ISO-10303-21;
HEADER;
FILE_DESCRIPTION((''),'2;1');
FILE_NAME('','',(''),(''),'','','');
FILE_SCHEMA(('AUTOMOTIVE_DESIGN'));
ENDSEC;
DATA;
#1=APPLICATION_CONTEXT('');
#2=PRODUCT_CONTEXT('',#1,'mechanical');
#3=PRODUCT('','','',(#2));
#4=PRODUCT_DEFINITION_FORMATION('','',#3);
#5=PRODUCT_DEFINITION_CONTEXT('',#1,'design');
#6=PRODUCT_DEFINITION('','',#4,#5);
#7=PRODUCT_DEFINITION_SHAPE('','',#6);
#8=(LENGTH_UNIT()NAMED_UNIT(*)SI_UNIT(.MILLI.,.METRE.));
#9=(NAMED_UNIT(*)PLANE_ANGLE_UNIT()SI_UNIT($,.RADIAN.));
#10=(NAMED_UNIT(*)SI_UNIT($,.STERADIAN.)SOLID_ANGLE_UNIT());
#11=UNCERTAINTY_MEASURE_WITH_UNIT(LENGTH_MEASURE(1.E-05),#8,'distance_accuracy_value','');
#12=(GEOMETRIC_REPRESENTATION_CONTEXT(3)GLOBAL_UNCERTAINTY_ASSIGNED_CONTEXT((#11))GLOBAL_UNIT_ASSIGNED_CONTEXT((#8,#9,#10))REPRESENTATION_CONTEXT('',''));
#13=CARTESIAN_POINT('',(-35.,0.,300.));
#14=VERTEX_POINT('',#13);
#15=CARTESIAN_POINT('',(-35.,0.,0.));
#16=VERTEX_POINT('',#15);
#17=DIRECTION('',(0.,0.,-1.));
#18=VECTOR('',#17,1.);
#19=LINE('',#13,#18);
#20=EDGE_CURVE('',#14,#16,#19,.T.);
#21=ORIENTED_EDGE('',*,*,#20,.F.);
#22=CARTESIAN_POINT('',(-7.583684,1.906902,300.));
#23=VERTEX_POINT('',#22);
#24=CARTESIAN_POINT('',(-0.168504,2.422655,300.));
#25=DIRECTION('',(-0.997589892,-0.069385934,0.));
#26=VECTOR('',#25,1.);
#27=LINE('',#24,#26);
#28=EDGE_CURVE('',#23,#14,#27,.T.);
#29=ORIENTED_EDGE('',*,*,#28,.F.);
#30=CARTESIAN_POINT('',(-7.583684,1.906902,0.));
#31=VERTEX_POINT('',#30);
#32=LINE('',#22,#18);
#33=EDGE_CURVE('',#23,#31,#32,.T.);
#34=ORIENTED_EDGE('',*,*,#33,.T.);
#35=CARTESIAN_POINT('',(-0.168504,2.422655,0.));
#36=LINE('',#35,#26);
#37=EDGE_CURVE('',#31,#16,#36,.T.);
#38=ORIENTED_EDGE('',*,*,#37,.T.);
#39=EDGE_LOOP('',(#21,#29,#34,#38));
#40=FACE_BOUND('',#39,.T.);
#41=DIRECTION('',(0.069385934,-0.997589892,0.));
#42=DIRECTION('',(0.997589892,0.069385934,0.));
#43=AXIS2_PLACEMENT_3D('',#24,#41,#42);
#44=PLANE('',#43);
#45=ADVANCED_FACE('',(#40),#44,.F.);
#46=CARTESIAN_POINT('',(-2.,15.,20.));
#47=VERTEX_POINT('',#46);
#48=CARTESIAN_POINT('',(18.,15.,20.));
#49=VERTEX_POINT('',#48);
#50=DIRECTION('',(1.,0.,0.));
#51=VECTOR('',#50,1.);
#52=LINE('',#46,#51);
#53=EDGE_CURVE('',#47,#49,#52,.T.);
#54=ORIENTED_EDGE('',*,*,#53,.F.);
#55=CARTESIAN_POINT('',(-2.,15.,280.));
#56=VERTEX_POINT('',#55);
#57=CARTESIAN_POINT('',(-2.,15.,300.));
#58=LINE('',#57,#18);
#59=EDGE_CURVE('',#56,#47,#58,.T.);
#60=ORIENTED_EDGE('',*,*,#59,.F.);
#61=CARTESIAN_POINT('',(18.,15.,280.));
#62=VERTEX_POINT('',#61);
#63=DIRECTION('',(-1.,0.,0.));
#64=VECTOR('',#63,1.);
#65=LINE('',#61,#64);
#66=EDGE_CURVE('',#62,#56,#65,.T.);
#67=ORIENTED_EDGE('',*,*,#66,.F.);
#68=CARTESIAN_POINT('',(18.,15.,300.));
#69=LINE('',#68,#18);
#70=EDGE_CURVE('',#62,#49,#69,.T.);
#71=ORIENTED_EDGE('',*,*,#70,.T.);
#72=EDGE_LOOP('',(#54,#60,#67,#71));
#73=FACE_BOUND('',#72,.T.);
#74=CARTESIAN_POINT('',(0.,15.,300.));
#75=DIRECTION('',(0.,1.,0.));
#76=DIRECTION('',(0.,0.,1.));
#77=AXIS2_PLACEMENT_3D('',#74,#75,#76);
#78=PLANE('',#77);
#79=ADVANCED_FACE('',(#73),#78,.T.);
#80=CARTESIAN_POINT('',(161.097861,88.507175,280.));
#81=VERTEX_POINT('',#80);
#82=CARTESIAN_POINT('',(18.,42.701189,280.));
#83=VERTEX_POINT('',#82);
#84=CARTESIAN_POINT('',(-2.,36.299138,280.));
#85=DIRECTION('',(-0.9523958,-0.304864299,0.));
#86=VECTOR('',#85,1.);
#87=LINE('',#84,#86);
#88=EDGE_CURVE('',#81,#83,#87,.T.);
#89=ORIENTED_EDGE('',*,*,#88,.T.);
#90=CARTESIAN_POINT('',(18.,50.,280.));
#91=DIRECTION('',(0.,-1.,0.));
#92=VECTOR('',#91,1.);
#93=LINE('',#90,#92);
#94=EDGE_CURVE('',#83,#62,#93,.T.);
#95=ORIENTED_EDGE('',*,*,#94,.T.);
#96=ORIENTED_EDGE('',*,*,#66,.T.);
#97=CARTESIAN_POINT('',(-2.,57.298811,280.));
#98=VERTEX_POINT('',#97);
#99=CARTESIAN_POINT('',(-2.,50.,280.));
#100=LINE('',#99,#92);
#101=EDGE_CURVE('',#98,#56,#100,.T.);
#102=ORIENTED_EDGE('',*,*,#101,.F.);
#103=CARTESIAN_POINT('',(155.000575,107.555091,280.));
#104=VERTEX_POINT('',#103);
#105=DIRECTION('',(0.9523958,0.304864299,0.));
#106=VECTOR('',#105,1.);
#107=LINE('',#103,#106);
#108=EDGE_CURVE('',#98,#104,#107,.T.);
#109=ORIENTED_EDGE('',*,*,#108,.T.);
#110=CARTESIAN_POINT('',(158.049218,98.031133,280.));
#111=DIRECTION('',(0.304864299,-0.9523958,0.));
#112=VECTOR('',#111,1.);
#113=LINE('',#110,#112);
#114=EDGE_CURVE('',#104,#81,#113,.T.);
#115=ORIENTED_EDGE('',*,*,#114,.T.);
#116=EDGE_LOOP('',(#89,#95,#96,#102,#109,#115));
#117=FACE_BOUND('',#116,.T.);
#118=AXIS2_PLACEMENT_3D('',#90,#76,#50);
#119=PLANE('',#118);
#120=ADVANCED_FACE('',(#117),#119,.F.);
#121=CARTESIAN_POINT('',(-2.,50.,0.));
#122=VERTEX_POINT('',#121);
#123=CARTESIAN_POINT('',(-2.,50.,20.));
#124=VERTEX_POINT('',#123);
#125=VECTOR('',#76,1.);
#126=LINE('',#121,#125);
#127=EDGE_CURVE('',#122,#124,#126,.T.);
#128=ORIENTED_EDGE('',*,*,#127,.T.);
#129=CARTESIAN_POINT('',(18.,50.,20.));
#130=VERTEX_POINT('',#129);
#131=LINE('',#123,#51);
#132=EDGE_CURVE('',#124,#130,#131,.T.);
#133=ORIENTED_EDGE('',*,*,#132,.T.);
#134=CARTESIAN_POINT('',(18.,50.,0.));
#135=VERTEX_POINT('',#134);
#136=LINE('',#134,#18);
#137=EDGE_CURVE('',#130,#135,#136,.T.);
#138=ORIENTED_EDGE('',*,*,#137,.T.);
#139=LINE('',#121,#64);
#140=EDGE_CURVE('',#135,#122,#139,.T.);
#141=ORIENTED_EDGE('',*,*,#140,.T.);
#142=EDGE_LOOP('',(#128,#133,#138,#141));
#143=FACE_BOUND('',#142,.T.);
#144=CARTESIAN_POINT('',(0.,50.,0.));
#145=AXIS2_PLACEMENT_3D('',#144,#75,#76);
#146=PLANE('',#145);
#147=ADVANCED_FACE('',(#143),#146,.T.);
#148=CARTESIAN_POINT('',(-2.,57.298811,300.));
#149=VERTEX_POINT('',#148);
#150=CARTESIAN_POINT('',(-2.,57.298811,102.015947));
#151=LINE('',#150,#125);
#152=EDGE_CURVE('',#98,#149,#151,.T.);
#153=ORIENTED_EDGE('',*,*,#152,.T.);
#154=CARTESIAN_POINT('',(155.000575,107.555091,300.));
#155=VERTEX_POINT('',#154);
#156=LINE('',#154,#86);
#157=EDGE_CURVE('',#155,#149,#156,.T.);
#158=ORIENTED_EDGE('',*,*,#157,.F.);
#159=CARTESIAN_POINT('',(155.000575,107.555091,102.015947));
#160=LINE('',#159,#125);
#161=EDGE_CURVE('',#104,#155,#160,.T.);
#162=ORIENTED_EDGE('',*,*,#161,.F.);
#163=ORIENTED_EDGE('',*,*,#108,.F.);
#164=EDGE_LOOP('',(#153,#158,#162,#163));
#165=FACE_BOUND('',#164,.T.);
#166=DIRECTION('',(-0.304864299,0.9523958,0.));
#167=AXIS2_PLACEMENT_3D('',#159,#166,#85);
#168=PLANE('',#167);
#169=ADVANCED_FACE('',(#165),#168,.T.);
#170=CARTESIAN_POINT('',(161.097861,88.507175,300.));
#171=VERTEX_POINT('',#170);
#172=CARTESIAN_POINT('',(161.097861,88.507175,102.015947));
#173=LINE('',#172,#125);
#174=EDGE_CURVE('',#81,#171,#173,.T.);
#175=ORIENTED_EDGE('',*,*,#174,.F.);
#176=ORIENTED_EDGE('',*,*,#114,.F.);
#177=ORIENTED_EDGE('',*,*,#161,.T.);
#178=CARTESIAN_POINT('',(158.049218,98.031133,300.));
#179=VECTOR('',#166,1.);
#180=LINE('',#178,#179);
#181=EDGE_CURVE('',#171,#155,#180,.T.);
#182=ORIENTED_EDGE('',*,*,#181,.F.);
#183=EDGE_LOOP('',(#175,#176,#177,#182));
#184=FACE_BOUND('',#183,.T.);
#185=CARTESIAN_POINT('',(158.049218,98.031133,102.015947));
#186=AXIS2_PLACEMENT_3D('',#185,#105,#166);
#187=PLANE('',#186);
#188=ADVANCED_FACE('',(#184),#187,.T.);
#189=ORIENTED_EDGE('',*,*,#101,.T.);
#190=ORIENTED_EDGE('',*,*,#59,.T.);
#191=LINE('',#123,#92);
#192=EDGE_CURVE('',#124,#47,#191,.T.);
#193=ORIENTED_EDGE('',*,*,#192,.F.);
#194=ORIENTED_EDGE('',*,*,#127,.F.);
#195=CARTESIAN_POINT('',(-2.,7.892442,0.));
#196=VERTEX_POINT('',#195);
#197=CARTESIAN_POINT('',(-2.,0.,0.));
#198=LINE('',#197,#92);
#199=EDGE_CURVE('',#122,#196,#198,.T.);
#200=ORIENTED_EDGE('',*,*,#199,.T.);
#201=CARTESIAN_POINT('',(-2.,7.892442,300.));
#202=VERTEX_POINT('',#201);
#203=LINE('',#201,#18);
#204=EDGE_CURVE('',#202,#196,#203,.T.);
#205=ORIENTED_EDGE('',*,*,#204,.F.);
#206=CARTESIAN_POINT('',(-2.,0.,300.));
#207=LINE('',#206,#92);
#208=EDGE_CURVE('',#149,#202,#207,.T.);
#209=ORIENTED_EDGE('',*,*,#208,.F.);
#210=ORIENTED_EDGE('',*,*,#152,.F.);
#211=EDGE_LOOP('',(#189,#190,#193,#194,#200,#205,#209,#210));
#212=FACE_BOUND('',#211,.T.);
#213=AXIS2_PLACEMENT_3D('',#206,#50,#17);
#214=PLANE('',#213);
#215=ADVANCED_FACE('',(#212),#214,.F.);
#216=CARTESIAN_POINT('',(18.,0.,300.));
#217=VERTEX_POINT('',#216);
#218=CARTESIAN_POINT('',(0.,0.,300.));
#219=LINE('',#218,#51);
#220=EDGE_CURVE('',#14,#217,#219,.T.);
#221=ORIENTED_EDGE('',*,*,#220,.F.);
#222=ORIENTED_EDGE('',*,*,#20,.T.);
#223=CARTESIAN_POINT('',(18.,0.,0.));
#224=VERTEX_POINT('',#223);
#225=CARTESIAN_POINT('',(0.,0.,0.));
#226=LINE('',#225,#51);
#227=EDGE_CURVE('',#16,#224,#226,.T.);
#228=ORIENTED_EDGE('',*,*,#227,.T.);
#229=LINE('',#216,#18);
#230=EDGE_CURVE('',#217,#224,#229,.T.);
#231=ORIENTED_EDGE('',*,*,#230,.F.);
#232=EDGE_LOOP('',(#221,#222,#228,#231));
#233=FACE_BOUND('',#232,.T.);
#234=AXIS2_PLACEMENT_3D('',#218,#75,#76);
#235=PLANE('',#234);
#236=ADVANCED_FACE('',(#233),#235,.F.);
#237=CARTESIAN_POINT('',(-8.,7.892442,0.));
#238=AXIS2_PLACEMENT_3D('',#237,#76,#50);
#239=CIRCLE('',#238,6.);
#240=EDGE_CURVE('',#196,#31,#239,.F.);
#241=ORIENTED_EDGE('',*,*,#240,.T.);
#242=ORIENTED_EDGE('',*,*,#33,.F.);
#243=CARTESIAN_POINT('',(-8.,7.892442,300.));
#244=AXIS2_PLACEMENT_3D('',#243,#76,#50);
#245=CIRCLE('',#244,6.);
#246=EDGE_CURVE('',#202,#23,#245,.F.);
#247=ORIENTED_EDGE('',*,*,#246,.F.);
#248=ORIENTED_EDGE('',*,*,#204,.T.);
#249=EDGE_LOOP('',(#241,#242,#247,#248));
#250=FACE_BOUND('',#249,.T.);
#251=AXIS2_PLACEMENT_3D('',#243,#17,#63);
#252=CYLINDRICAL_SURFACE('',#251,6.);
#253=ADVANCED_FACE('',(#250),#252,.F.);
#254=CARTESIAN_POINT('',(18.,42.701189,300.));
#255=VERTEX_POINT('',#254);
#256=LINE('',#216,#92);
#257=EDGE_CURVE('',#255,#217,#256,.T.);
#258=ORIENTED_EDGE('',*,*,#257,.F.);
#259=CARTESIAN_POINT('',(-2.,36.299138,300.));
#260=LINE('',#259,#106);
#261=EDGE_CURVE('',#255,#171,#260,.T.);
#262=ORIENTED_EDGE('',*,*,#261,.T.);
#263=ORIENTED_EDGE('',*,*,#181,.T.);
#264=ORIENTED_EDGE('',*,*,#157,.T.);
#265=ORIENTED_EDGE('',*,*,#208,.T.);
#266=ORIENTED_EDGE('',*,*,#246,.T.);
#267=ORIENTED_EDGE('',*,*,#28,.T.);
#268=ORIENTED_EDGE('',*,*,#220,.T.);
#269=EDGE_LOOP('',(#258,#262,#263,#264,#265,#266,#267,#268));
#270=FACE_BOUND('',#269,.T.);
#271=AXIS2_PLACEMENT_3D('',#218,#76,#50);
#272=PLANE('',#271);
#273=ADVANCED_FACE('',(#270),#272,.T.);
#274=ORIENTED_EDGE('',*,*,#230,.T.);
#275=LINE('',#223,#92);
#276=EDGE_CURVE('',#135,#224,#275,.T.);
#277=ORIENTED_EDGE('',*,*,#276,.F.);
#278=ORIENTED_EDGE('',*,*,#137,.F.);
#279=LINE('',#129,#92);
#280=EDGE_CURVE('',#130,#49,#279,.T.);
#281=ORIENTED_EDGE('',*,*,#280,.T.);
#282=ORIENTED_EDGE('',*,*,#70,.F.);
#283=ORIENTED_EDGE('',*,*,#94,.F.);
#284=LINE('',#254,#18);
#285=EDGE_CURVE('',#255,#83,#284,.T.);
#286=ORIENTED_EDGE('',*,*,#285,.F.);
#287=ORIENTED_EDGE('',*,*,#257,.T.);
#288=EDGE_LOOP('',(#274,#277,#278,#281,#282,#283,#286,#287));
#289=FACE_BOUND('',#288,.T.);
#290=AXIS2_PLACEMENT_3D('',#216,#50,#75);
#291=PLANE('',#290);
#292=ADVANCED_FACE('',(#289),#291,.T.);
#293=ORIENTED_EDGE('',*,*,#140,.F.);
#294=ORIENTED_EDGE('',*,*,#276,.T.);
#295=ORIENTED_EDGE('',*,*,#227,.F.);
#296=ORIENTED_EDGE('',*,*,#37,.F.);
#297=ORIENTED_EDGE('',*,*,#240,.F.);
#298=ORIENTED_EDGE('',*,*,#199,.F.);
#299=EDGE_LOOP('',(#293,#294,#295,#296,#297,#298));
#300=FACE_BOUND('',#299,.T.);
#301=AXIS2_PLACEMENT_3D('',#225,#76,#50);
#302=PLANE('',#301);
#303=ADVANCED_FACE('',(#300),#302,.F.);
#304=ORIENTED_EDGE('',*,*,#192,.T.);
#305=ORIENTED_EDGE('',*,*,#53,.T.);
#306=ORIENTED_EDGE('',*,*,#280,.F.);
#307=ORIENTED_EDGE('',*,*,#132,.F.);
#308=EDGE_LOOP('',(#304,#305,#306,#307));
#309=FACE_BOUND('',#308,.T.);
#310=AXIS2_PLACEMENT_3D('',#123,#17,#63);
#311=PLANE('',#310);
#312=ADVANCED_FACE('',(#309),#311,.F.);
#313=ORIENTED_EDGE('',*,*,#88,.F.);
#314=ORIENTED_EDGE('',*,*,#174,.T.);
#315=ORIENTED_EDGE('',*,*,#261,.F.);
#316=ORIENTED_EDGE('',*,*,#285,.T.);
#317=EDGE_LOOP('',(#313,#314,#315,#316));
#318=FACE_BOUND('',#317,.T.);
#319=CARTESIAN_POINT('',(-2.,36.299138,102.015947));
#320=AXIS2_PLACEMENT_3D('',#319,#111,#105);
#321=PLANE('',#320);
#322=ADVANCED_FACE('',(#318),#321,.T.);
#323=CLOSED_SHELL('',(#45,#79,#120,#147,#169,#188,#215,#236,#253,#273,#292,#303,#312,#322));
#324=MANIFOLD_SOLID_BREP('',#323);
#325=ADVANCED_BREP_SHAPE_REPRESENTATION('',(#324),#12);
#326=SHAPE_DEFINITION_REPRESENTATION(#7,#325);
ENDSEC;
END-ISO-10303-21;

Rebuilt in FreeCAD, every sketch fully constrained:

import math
import FreeCAD as App
import Part
import Sketcher
Q = App.Units.Quantity


def add_polygon(sketch, points):
    """Adds a closed chain of lines whose ends are joined by coincident constraints."""
    first, n = sketch.GeometryCount, len(points)
    for a, b in zip(points, points[1:] + points[:1]):
        sketch.addGeometry(Part.LineSegment(App.Vector(*a, 0), App.Vector(*b, 0)), False)
    for i in range(n):
        sketch.addConstraint(Sketcher.Constraint("Coincident", first + i, 2, first + (i + 1) % n, 1))

doc = App.newDocument("Part")
body = doc.addObject("PartDesign::Body", "Body")

# Sketch on XY plane
sketch1 = body.newObject("Sketcher::SketchObject", "Sketch")
sketch1.AttachmentSupport = (doc.getObject("XY_Plane"), [""])
sketch1.MapMode = "FlatFace"
sketch1.addGeometry([
    Part.LineSegment(App.Vector(18, 0, 0), App.Vector(18, 15, 0)),  # 0
    Part.LineSegment(App.Vector(18, 15, 0), App.Vector(-2, 15, 0)),  # 1
    Part.LineSegment(App.Vector(-2, 15, 0), App.Vector(-2, 8, 0)),  # 2
    Part.ArcOfCircle(Part.Circle(App.Vector(-8, 8, 0), App.Vector(0, 0, 1), 6), math.radians(-86), math.radians(0)),  # 3
    Part.LineSegment(App.Vector(-8, 2, 0), App.Vector(-35, 0, 0)),  # 4
    Part.LineSegment(App.Vector(-35, 0, 0), App.Vector(18, 0, 0)),  # 5
], False)
sketch1.addConstraint([
    Sketcher.Constraint("Coincident", 0, 2, 1, 1),
    Sketcher.Constraint("Coincident", 1, 2, 2, 1),
    Sketcher.Constraint("Tangent", 2, 2, 3, 2),
    Sketcher.Constraint("Tangent", 3, 1, 4, 1),
    Sketcher.Constraint("Coincident", 4, 2, 5, 1),
    Sketcher.Constraint("Coincident", 5, 2, 0, 1),
    Sketcher.Constraint("Vertical", 0),
    Sketcher.Constraint("Horizontal", 1),
    Sketcher.Constraint("Vertical", 2),
    Sketcher.Constraint("Horizontal", 5),
    Sketcher.Constraint("PointOnObject", 4, 2, -1),
    Sketcher.Constraint("Radius", 3, 6.0),
    Sketcher.Constraint("DistanceX", 1, 2, 1, 1, 20.0),
    Sketcher.Constraint("DistanceX", 5, 1, 5, 2, 53.0),
    Sketcher.Constraint("DistanceY", 0, 1, 0, 2, 15.0),
    Sketcher.Constraint("DistanceX", 3, 3, -1, 1, 8.0),
    Sketcher.Constraint("DistanceY", 2, 2, 2, 1, 7.107558),
])
pad1 = body.newObject("PartDesign::Pad", "Pad")
pad1.Profile = sketch1
pad1.Length = 300

# Sketch on XZ plane
sketch2 = body.newObject("Sketcher::SketchObject", "Sketch001")
sketch2.AttachmentSupport = (doc.getObject("XZ_Plane"), [""])
sketch2.MapMode = "FlatFace"
sketch2.AttachmentOffset = App.Placement(App.Vector(0, 0, -15), App.Rotation())
add_polygon(sketch2, [(-2, 0), (-2, 20), (18, 20), (18, 0)])  # lines 0-3
add_polygon(sketch2, [(-2, 280), (-2, 300), (18, 300), (18, 280)])  # lines 4-7
sketch2.addConstraint([
    Sketcher.Constraint("Vertical", 0),
    Sketcher.Constraint("Horizontal", 1),
    Sketcher.Constraint("Vertical", 2),
    Sketcher.Constraint("Horizontal", 3),
    Sketcher.Constraint("Vertical", 4),
    Sketcher.Constraint("Horizontal", 5),
    Sketcher.Constraint("Vertical", 6),
    Sketcher.Constraint("Horizontal", 7),
    Sketcher.Constraint("PointOnObject", 2, 2, -1),
    Sketcher.Constraint("Vertical", 3, 2, 4, 2),
    Sketcher.Constraint("Vertical", 2, 2, 5, 2),
    Sketcher.Constraint("Equal", 7, 0),
    Sketcher.Constraint("Equal", 2, 4),
    Sketcher.Constraint("DistanceX", 1, 1, 1, 2, 20.0),
    Sketcher.Constraint("DistanceX", 0, 2, -1, 1, 2.0),
    Sketcher.Constraint("DistanceY", -1, 1, 4, 2, 300.0),
])
pad2 = body.newObject("PartDesign::Pad", "Pad001")
pad2.Profile = sketch2
pad2.Length = 35
pad2.Reversed = True

# Sketch on XY plane
sketch3 = body.newObject("Sketcher::SketchObject", "Sketch002")
sketch3.AttachmentSupport = (doc.getObject("XY_Plane"), [""])
sketch3.MapMode = "FlatFace"
sketch3.AttachmentOffset = App.Placement(App.Vector(0, 0, 300), App.Rotation())
add_polygon(sketch3, [(158, 98), (155, 108), (-2, 57), (-2, 36), (161, 89)])  # lines 0-4
sketch3.addConstraint([
    Sketcher.Constraint("Vertical", 2),
    Sketcher.Constraint("Perpendicular", 0, 1),
    Sketcher.Constraint("Parallel", 1, 3),
    Sketcher.Constraint("Perpendicular", 3, 4),
    Sketcher.Constraint("Equal", 0, 4),
    Sketcher.Constraint("Distance", 0, 10.0),
    Sketcher.Constraint("DistanceX", 1, 2, -1, 1, 2.0),
    Sketcher.Constraint("Angle", 0, Q("107.75 deg")),
    Sketcher.Constraint("DistanceY", -1, 1, 0, 2, 107.555091),
    Sketcher.Constraint("DistanceY", -1, 1, 1, 2, 57.298811),
])
pad3 = body.newObject("PartDesign::Pad", "Pad002")
pad3.Profile = sketch3
pad3.Length = 20
pad3.Reversed = True

doc.recompute()
